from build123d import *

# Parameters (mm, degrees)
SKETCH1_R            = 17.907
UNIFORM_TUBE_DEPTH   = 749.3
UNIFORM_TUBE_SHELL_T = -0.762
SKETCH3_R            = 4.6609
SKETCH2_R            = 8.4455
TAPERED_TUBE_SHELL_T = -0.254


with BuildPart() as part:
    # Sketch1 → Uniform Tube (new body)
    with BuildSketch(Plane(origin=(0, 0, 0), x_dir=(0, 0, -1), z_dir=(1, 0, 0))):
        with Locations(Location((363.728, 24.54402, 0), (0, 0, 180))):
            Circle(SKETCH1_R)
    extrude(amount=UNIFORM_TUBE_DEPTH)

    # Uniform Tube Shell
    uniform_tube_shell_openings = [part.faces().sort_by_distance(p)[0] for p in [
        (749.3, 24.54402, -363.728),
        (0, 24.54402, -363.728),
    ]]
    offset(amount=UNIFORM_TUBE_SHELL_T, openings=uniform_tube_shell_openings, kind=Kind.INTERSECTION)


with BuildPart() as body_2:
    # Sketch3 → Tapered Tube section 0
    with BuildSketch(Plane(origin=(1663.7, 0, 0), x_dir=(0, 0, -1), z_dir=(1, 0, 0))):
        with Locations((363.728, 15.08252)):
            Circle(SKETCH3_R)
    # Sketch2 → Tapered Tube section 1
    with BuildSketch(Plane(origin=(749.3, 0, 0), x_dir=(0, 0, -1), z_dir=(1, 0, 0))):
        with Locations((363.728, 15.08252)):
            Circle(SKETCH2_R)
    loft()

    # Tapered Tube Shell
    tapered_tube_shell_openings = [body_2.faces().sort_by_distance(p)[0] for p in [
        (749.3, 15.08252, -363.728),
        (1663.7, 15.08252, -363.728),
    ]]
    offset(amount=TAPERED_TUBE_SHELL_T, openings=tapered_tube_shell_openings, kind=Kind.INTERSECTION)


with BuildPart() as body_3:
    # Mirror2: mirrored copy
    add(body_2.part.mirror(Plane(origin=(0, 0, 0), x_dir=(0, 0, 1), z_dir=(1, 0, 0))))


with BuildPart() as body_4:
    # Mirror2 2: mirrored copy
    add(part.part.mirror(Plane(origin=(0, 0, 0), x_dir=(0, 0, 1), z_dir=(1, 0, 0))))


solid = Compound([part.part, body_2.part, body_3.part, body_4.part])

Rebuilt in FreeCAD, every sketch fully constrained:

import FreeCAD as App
import Part
import Sketcher
from FreeCAD import Vector
Q = App.Units.Quantity


def faces_at(feature, points):
    """Names of the faces that lie closest to the given points."""
    faces = feature.Shape.Faces
    near = lambda p: min(range(len(faces)), key=lambda i: faces[i].distToShape(Part.Vertex(*p))[0])
    return sorted({f"Face{near(p) + 1}" for p in points})

doc = App.newDocument("Part")
body = doc.addObject("PartDesign::Body", "Body")

sketch1 = doc.addObject("Sketcher::SketchObject", "Sketch")
body.addObject(sketch1)
sketch1.AttachmentSupport = (doc.YZ_Plane, [""])
sketch1.MapMode = "FlatFace"
sketch1.addGeometry(Part.Circle(Vector(24.54402, -363.728, 0), Vector(0, 0, 1), 17.907), False)
sketch1.addConstraint(Sketcher.Constraint("Diameter", 0, Q("1.41 in")))
sketch1.addConstraint(Sketcher.Constraint("DistanceY", 0, 3, -1, 1, Q("14.32 in")))
sketch1.addConstraint(Sketcher.Constraint("DistanceX", -1, 1, 0, 3, Q("0.9663 in")))
pad1 = doc.addObject("PartDesign::Pad", "Pad")
body.addObject(pad1)
pad1.Profile = sketch1
pad1.Length = Q("29.5 in")
doc.recompute()

thickness = doc.addObject("PartDesign::Thickness", "Thickness")
body.addObject(thickness)
thickness.Base = (pad1, faces_at(pad1, [(749.3, 24.544, -363.728), (0, 24.544, -363.728)]))
thickness.Value = Q("0.03 in")
thickness.Reversed = True
thickness.Join = "Intersection"
body2 = doc.addObject("PartDesign::Body", "Body001")

sketch2 = doc.addObject("Sketcher::SketchObject", "Sketch001")
body2.addObject(sketch2)
sketch2.AttachmentSupport = (doc.getObject("YZ_Plane001"), [""])
sketch2.MapMode = "FlatFace"
sketch2.AttachmentOffset = App.Placement(Vector(0, 0, 65.5 * 25.4), App.Rotation())
sketch2.addGeometry(Part.Circle(Vector(15.08252, -363.728, 0), Vector(0, 0, 1), 4.6609), False)
sketch2.addConstraint(Sketcher.Constraint("Diameter", 0, Q("0.367 in")))
sketch2.addConstraint(Sketcher.Constraint("DistanceY", 0, 3, -1, 1, Q("14.32 in")))
sketch2.addConstraint(Sketcher.Constraint("DistanceX", -1, 1, 0, 3, Q("0.5938 in")))

sketch3 = doc.addObject("Sketcher::SketchObject", "Sketch002")
body2.addObject(sketch3)
sketch3.AttachmentSupport = (doc.getObject("YZ_Plane001"), [""])
sketch3.MapMode = "FlatFace"
sketch3.AttachmentOffset = App.Placement(Vector(0, 0, 29.5 * 25.4), App.Rotation())
sketch3.addGeometry(Part.Circle(Vector(15.08252, -363.728, 0), Vector(0, 0, 1), 8.4455), False)
sketch3.addConstraint(Sketcher.Constraint("Diameter", 0, Q("0.665 in")))
sketch3.addConstraint(Sketcher.Constraint("DistanceY", 0, 3, -1, 1, Q("14.32 in")))
sketch3.addConstraint(Sketcher.Constraint("DistanceX", -1, 1, 0, 3, Q("0.5938 in")))

additiveloft = doc.addObject("PartDesign::AdditiveLoft", "AdditiveLoft")
body2.addObject(additiveloft)
additiveloft.Profile = sketch2
additiveloft.Sections = [sketch3]
doc.recompute()

thickness2 = doc.addObject("PartDesign::Thickness", "Thickness001")
body2.addObject(thickness2)
thickness2.Base = (additiveloft, faces_at(additiveloft, [(749.3, 15.083, -363.728), (1663.7, 15.083, -363.728)]))
thickness2.Value = Q("0.01 in")
thickness2.Reversed = True
thickness2.Join = "Intersection"
body3 = doc.addObject("PartDesign::Body", "Body002")
doc.recompute()

mirroring = doc.addObject("Part::Mirroring", "Mirroring")
mirroring.Source = body2
mirroring.Base = Vector(0, 0, 0)
mirroring.Normal = Vector(1, 0, 0)
body3.BaseFeature = mirroring
doc.recompute()
body4 = doc.addObject("PartDesign::Body", "Body003")
doc.recompute()

mirroring2 = doc.addObject("Part::Mirroring", "Mirroring001")
mirroring2.Source = body
mirroring2.Base = Vector(0, 0, 0)
mirroring2.Normal = Vector(1, 0, 0)
body4.BaseFeature = mirroring2
doc.recompute()
mirroring.Visibility = False
mirroring2.Visibility = False

doc.recompute()
